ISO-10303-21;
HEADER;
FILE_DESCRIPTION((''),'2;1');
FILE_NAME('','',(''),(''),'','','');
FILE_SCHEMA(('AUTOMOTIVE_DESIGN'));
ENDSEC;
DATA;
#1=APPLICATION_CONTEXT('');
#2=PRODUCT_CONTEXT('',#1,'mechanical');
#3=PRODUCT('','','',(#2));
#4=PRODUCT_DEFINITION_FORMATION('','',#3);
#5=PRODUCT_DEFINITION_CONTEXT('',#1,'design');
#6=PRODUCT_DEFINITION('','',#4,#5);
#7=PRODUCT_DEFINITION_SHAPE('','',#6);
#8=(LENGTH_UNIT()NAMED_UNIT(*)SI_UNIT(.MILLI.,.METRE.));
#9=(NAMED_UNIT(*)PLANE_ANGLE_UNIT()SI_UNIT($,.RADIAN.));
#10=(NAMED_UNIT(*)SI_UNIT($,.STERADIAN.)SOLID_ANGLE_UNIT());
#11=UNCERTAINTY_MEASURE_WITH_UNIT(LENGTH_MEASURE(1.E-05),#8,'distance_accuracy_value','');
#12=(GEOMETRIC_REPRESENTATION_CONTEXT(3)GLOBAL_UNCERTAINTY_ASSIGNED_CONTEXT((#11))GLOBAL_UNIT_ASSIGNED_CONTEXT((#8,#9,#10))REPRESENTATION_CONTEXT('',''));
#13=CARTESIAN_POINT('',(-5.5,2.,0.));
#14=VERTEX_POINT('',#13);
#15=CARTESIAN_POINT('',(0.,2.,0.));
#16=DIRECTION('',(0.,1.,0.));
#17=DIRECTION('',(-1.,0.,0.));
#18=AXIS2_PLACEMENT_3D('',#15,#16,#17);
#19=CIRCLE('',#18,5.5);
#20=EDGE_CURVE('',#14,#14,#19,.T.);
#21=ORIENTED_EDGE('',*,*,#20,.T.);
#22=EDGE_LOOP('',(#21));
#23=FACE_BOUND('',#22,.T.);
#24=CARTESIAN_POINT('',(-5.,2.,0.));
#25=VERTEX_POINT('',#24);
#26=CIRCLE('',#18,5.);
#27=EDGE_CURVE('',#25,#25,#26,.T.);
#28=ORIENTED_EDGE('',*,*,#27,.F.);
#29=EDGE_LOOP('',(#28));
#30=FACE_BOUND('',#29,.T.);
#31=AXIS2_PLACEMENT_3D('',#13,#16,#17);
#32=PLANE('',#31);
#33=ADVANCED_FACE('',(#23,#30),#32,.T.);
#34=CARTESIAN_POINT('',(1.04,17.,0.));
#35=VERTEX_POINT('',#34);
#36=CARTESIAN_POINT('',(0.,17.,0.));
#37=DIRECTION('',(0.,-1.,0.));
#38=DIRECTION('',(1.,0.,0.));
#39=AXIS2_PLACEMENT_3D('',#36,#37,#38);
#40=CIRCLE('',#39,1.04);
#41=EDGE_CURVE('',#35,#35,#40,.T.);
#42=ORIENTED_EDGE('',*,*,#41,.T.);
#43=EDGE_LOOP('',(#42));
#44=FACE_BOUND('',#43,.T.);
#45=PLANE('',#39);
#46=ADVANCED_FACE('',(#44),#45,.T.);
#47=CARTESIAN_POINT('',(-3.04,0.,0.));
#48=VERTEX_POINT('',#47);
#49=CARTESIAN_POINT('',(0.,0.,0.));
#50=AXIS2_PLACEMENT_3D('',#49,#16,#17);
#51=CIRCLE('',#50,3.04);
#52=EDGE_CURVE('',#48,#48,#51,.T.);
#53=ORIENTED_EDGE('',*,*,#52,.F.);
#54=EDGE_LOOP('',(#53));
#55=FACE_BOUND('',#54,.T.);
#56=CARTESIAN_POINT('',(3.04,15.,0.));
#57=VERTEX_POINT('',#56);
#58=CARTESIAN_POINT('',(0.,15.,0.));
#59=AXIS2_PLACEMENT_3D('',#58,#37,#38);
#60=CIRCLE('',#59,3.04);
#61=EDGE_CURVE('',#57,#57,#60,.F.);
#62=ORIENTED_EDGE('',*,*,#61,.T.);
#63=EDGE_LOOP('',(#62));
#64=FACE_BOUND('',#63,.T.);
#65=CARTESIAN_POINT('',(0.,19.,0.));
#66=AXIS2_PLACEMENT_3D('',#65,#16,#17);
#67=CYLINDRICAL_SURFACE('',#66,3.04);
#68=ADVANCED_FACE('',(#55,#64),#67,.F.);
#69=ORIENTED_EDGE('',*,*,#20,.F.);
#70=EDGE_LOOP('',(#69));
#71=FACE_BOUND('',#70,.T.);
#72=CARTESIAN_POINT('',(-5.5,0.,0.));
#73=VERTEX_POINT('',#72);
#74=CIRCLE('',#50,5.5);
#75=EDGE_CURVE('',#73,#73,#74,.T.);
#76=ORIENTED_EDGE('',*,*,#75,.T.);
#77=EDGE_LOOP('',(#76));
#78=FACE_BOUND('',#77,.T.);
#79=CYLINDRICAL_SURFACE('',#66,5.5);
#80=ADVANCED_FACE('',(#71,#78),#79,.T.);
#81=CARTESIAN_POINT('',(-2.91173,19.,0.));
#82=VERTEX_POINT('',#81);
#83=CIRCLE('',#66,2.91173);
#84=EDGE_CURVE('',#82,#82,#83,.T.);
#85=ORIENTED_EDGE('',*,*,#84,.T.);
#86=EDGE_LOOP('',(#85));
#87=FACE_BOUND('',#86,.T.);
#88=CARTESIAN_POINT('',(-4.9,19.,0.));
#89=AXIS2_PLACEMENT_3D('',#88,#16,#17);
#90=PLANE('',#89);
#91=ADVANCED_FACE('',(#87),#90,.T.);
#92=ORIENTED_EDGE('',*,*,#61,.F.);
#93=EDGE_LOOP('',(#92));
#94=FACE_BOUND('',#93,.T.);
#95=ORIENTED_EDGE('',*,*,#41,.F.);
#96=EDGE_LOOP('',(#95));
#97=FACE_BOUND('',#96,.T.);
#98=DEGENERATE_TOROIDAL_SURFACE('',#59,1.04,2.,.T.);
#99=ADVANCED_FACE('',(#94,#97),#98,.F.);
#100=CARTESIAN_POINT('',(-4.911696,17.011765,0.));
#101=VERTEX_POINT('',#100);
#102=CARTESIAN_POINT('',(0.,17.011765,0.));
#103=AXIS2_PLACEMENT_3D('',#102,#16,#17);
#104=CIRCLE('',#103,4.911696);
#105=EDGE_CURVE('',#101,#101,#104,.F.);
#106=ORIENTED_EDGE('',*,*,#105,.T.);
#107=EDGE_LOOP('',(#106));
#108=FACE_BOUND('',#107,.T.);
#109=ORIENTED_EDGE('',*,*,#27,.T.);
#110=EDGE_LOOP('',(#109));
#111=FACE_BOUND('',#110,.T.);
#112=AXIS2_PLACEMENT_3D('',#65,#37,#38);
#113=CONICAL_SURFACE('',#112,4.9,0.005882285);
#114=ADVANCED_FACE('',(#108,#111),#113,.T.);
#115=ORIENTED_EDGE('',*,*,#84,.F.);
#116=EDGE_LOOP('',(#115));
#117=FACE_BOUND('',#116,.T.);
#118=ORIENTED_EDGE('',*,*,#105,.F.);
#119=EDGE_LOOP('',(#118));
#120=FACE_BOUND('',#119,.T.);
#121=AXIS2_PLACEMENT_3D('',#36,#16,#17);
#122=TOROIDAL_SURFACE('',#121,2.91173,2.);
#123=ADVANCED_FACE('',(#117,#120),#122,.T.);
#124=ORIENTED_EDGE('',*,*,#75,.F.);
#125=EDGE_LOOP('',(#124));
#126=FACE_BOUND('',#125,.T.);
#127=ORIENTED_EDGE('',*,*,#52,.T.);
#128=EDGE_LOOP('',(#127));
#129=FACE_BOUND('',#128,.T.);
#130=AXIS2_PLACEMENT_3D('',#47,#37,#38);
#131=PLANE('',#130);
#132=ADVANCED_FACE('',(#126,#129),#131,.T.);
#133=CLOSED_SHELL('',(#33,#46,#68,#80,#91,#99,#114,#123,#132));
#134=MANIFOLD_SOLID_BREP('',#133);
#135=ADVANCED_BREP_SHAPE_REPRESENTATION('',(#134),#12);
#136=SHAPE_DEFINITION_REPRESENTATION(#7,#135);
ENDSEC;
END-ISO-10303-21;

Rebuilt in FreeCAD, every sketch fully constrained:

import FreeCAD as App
import Part
import Sketcher


def edges_at(feature, points):
    """Names of the edges that pass closest to the given points."""
    edges = feature.Shape.Edges
    near = lambda p: min(range(len(edges)), key=lambda i: edges[i].distToShape(Part.Vertex(*p))[0])
    return sorted({f"Edge{near(p) + 1}" for p in points})


def add_polygon(sketch, points):
    """Adds a closed chain of lines whose ends are joined by coincident constraints."""
    first, n = sketch.GeometryCount, len(points)
    for a, b in zip(points, points[1:] + points[:1]):
        sketch.addGeometry(Part.LineSegment(App.Vector(*a, 0), App.Vector(*b, 0)), False)
    for i in range(n):
        sketch.addConstraint(Sketcher.Constraint("Coincident", first + i, 2, first + (i + 1) % n, 1))

doc = App.newDocument("Part")
body = doc.addObject("PartDesign::Body", "Body")

sketch1 = doc.addObject("Sketcher::SketchObject", "Sketch")
body.addObject(sketch1)
sketch1.AttachmentSupport = (doc.XY_Plane, [""])
sketch1.MapMode = "FlatFace"
add_polygon(sketch1, [(0, 17), (0, 19), (-4.9, 19), (-5, 2), (-5.5, 2), (-5.5, 0), (-3.04, 0), (-3.04, 17)])
sketch1.addConstraint([
    Sketcher.Constraint("Vertical", 0),
    Sketcher.Constraint("Horizontal", 1),
    Sketcher.Constraint("Horizontal", 3),
    Sketcher.Constraint("Vertical", 4),
    Sketcher.Constraint("Horizontal", 5),
    Sketcher.Constraint("Vertical", 6),
    Sketcher.Constraint("Horizontal", 7),
    Sketcher.Constraint("PointOnObject", 0, 2, -2),
    Sketcher.Constraint("PointOnObject", 4, 2, -1),
    Sketcher.Constraint("Equal", 0, 4),
    Sketcher.Constraint("DistanceY", 0, 1, 0, 2, 2.0),
    Sketcher.Constraint("DistanceY", 6, 1, 6, 2, 17.0),
    Sketcher.Constraint("DistanceX", 1, 2, 1, 1, 4.9),
    Sketcher.Constraint("DistanceX", 3, 2, 3, 1, 0.5),
    Sketcher.Constraint("DistanceX", 2, 2, -1, 1, 5.0),
    Sketcher.Constraint("DistanceX", 5, 1, 5, 2, 2.46),
])
revolution = doc.addObject("PartDesign::Revolution", "Revolution")
body.addObject(revolution)
revolution.Profile = sketch1
revolution.ReferenceAxis = (sketch1, ["V_Axis"])
revolution.Angle = 360
doc.recompute()

fillet = doc.addObject("PartDesign::Fillet", "Fillet")
body.addObject(fillet)
fillet.Base = (revolution, edges_at(revolution, [(3.04, 17, 0)]))
fillet.Radius = 2
doc.recompute()

fillet2 = doc.addObject("PartDesign::Fillet", "Fillet001")
body.addObject(fillet2)
fillet2.Base = (fillet, edges_at(fillet, [(4.9, 19, 0)]))
fillet2.Radius = 2

doc.recompute()
